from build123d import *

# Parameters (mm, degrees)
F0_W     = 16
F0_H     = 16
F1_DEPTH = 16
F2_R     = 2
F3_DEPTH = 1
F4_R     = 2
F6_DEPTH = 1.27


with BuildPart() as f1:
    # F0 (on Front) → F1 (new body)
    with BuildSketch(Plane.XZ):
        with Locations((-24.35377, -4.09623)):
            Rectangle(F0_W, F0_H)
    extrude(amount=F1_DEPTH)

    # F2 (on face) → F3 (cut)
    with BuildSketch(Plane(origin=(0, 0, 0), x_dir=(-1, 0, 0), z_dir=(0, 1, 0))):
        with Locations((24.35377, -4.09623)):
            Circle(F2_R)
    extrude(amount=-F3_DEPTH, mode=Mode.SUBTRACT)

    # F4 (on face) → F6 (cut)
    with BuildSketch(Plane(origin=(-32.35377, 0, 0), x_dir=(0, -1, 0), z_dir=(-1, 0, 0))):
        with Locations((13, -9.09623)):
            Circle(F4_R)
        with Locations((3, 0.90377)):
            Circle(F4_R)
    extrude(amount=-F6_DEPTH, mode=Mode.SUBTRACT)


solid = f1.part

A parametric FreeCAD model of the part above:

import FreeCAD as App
import Part
import Sketcher
from FreeCAD import Vector

doc = App.newDocument("Part")
body = doc.addObject("PartDesign::Body", "Body")

sketch1 = doc.addObject("Sketcher::SketchObject", "Sketch")
body.addObject(sketch1)
sketch1.AttachmentSupport = (doc.XZ_Plane, [""])
sketch1.MapMode = "FlatFace"
sketch1.addGeometry([
    Part.LineSegment(Vector(-32.35377, 3.90377, 0), Vector(-32.35377, -12.09623, 0)),
    Part.LineSegment(Vector(-32.35377, -12.09623, 0), Vector(-16.35377, -12.09623, 0)),
    Part.LineSegment(Vector(-16.35377, -12.09623, 0), Vector(-16.35377, 3.90377, 0)),
    Part.LineSegment(Vector(-16.35377, 3.90377, 0), Vector(-32.35377, 3.90377, 0)),
], False)
sketch1.addConstraint([
    Sketcher.Constraint("Coincident", 0, 2, 1, 1),
    Sketcher.Constraint("Coincident", 1, 2, 2, 1),
    Sketcher.Constraint("Coincident", 2, 2, 3, 1),
    Sketcher.Constraint("Coincident", 3, 2, 0, 1),
    Sketcher.Constraint("Vertical", 0),
    Sketcher.Constraint("Horizontal", 1),
    Sketcher.Constraint("Vertical", 2),
    Sketcher.Constraint("Horizontal", 3),
    Sketcher.Constraint("Equal", 3, 0),
    Sketcher.Constraint("DistanceX", 1, 1, 1, 2, 16.0),
    Sketcher.Constraint("DistanceX", 0, 2, -1, 1, 32.35377),
    Sketcher.Constraint("DistanceY", 0, 2, -1, 1, 12.09623),
])
pad1 = doc.addObject("PartDesign::Pad", "Pad")
body.addObject(pad1)
pad1.Profile = sketch1
pad1.Length = 16

sketch2 = doc.addObject("Sketcher::SketchObject", "Sketch001")
body.addObject(sketch2)
sketch2.AttachmentSupport = (doc.XZ_Plane, [""])
sketch2.MapMode = "FlatFace"
sketch2.addGeometry(Part.Circle(Vector(-24.35377, -4.09623, 0), Vector(0, 0, 1), 2), False)
sketch2.addConstraint([
    Sketcher.Constraint("Diameter", 0, 4.0),
    Sketcher.Constraint("DistanceX", 0, 3, -1, 1, 24.35377),
    Sketcher.Constraint("DistanceY", 0, 3, -1, 1, 4.09623),
])
pocket1 = doc.addObject("PartDesign::Pocket", "Pocket")
body.addObject(pocket1)
pocket1.Profile = sketch2
pocket1.Length = 1
pocket1.Reversed = True

sketch3 = doc.addObject("Sketcher::SketchObject", "Sketch002")
body.addObject(sketch3)
sketch3.AttachmentSupport = (doc.YZ_Plane, [""])
sketch3.MapMode = "FlatFace"
sketch3.AttachmentOffset = App.Placement(Vector(0, 0, -32.35377), App.Rotation())
sketch3.addGeometry([
    Part.Circle(Vector(-13, -9.09623, 0), Vector(0, 0, 1), 2),
    Part.Circle(Vector(-3, 0.90377, 0), Vector(0, 0, 1), 2),
], False)
sketch3.addConstraint([
    Sketcher.Constraint("Equal", 0, 1),
    Sketcher.Constraint("Diameter", 0, 4.0),
    Sketcher.Constraint("DistanceX", 0, 3, -1, 1, 13.0),
    Sketcher.Constraint("DistanceX", 1, 3, -1, 1, 3.0),
    Sketcher.Constraint("DistanceY", 0, 3, 1, 3, 10.0),
    Sketcher.Constraint("DistanceY", 0, 3, -1, 1, 9.09623),
])
pocket2 = doc.addObject("PartDesign::Pocket", "Pocket001")
body.addObject(pocket2)
pocket2.Profile = sketch3
pocket2.Length = 1.27
pocket2.Reversed = True

doc.recompute()
